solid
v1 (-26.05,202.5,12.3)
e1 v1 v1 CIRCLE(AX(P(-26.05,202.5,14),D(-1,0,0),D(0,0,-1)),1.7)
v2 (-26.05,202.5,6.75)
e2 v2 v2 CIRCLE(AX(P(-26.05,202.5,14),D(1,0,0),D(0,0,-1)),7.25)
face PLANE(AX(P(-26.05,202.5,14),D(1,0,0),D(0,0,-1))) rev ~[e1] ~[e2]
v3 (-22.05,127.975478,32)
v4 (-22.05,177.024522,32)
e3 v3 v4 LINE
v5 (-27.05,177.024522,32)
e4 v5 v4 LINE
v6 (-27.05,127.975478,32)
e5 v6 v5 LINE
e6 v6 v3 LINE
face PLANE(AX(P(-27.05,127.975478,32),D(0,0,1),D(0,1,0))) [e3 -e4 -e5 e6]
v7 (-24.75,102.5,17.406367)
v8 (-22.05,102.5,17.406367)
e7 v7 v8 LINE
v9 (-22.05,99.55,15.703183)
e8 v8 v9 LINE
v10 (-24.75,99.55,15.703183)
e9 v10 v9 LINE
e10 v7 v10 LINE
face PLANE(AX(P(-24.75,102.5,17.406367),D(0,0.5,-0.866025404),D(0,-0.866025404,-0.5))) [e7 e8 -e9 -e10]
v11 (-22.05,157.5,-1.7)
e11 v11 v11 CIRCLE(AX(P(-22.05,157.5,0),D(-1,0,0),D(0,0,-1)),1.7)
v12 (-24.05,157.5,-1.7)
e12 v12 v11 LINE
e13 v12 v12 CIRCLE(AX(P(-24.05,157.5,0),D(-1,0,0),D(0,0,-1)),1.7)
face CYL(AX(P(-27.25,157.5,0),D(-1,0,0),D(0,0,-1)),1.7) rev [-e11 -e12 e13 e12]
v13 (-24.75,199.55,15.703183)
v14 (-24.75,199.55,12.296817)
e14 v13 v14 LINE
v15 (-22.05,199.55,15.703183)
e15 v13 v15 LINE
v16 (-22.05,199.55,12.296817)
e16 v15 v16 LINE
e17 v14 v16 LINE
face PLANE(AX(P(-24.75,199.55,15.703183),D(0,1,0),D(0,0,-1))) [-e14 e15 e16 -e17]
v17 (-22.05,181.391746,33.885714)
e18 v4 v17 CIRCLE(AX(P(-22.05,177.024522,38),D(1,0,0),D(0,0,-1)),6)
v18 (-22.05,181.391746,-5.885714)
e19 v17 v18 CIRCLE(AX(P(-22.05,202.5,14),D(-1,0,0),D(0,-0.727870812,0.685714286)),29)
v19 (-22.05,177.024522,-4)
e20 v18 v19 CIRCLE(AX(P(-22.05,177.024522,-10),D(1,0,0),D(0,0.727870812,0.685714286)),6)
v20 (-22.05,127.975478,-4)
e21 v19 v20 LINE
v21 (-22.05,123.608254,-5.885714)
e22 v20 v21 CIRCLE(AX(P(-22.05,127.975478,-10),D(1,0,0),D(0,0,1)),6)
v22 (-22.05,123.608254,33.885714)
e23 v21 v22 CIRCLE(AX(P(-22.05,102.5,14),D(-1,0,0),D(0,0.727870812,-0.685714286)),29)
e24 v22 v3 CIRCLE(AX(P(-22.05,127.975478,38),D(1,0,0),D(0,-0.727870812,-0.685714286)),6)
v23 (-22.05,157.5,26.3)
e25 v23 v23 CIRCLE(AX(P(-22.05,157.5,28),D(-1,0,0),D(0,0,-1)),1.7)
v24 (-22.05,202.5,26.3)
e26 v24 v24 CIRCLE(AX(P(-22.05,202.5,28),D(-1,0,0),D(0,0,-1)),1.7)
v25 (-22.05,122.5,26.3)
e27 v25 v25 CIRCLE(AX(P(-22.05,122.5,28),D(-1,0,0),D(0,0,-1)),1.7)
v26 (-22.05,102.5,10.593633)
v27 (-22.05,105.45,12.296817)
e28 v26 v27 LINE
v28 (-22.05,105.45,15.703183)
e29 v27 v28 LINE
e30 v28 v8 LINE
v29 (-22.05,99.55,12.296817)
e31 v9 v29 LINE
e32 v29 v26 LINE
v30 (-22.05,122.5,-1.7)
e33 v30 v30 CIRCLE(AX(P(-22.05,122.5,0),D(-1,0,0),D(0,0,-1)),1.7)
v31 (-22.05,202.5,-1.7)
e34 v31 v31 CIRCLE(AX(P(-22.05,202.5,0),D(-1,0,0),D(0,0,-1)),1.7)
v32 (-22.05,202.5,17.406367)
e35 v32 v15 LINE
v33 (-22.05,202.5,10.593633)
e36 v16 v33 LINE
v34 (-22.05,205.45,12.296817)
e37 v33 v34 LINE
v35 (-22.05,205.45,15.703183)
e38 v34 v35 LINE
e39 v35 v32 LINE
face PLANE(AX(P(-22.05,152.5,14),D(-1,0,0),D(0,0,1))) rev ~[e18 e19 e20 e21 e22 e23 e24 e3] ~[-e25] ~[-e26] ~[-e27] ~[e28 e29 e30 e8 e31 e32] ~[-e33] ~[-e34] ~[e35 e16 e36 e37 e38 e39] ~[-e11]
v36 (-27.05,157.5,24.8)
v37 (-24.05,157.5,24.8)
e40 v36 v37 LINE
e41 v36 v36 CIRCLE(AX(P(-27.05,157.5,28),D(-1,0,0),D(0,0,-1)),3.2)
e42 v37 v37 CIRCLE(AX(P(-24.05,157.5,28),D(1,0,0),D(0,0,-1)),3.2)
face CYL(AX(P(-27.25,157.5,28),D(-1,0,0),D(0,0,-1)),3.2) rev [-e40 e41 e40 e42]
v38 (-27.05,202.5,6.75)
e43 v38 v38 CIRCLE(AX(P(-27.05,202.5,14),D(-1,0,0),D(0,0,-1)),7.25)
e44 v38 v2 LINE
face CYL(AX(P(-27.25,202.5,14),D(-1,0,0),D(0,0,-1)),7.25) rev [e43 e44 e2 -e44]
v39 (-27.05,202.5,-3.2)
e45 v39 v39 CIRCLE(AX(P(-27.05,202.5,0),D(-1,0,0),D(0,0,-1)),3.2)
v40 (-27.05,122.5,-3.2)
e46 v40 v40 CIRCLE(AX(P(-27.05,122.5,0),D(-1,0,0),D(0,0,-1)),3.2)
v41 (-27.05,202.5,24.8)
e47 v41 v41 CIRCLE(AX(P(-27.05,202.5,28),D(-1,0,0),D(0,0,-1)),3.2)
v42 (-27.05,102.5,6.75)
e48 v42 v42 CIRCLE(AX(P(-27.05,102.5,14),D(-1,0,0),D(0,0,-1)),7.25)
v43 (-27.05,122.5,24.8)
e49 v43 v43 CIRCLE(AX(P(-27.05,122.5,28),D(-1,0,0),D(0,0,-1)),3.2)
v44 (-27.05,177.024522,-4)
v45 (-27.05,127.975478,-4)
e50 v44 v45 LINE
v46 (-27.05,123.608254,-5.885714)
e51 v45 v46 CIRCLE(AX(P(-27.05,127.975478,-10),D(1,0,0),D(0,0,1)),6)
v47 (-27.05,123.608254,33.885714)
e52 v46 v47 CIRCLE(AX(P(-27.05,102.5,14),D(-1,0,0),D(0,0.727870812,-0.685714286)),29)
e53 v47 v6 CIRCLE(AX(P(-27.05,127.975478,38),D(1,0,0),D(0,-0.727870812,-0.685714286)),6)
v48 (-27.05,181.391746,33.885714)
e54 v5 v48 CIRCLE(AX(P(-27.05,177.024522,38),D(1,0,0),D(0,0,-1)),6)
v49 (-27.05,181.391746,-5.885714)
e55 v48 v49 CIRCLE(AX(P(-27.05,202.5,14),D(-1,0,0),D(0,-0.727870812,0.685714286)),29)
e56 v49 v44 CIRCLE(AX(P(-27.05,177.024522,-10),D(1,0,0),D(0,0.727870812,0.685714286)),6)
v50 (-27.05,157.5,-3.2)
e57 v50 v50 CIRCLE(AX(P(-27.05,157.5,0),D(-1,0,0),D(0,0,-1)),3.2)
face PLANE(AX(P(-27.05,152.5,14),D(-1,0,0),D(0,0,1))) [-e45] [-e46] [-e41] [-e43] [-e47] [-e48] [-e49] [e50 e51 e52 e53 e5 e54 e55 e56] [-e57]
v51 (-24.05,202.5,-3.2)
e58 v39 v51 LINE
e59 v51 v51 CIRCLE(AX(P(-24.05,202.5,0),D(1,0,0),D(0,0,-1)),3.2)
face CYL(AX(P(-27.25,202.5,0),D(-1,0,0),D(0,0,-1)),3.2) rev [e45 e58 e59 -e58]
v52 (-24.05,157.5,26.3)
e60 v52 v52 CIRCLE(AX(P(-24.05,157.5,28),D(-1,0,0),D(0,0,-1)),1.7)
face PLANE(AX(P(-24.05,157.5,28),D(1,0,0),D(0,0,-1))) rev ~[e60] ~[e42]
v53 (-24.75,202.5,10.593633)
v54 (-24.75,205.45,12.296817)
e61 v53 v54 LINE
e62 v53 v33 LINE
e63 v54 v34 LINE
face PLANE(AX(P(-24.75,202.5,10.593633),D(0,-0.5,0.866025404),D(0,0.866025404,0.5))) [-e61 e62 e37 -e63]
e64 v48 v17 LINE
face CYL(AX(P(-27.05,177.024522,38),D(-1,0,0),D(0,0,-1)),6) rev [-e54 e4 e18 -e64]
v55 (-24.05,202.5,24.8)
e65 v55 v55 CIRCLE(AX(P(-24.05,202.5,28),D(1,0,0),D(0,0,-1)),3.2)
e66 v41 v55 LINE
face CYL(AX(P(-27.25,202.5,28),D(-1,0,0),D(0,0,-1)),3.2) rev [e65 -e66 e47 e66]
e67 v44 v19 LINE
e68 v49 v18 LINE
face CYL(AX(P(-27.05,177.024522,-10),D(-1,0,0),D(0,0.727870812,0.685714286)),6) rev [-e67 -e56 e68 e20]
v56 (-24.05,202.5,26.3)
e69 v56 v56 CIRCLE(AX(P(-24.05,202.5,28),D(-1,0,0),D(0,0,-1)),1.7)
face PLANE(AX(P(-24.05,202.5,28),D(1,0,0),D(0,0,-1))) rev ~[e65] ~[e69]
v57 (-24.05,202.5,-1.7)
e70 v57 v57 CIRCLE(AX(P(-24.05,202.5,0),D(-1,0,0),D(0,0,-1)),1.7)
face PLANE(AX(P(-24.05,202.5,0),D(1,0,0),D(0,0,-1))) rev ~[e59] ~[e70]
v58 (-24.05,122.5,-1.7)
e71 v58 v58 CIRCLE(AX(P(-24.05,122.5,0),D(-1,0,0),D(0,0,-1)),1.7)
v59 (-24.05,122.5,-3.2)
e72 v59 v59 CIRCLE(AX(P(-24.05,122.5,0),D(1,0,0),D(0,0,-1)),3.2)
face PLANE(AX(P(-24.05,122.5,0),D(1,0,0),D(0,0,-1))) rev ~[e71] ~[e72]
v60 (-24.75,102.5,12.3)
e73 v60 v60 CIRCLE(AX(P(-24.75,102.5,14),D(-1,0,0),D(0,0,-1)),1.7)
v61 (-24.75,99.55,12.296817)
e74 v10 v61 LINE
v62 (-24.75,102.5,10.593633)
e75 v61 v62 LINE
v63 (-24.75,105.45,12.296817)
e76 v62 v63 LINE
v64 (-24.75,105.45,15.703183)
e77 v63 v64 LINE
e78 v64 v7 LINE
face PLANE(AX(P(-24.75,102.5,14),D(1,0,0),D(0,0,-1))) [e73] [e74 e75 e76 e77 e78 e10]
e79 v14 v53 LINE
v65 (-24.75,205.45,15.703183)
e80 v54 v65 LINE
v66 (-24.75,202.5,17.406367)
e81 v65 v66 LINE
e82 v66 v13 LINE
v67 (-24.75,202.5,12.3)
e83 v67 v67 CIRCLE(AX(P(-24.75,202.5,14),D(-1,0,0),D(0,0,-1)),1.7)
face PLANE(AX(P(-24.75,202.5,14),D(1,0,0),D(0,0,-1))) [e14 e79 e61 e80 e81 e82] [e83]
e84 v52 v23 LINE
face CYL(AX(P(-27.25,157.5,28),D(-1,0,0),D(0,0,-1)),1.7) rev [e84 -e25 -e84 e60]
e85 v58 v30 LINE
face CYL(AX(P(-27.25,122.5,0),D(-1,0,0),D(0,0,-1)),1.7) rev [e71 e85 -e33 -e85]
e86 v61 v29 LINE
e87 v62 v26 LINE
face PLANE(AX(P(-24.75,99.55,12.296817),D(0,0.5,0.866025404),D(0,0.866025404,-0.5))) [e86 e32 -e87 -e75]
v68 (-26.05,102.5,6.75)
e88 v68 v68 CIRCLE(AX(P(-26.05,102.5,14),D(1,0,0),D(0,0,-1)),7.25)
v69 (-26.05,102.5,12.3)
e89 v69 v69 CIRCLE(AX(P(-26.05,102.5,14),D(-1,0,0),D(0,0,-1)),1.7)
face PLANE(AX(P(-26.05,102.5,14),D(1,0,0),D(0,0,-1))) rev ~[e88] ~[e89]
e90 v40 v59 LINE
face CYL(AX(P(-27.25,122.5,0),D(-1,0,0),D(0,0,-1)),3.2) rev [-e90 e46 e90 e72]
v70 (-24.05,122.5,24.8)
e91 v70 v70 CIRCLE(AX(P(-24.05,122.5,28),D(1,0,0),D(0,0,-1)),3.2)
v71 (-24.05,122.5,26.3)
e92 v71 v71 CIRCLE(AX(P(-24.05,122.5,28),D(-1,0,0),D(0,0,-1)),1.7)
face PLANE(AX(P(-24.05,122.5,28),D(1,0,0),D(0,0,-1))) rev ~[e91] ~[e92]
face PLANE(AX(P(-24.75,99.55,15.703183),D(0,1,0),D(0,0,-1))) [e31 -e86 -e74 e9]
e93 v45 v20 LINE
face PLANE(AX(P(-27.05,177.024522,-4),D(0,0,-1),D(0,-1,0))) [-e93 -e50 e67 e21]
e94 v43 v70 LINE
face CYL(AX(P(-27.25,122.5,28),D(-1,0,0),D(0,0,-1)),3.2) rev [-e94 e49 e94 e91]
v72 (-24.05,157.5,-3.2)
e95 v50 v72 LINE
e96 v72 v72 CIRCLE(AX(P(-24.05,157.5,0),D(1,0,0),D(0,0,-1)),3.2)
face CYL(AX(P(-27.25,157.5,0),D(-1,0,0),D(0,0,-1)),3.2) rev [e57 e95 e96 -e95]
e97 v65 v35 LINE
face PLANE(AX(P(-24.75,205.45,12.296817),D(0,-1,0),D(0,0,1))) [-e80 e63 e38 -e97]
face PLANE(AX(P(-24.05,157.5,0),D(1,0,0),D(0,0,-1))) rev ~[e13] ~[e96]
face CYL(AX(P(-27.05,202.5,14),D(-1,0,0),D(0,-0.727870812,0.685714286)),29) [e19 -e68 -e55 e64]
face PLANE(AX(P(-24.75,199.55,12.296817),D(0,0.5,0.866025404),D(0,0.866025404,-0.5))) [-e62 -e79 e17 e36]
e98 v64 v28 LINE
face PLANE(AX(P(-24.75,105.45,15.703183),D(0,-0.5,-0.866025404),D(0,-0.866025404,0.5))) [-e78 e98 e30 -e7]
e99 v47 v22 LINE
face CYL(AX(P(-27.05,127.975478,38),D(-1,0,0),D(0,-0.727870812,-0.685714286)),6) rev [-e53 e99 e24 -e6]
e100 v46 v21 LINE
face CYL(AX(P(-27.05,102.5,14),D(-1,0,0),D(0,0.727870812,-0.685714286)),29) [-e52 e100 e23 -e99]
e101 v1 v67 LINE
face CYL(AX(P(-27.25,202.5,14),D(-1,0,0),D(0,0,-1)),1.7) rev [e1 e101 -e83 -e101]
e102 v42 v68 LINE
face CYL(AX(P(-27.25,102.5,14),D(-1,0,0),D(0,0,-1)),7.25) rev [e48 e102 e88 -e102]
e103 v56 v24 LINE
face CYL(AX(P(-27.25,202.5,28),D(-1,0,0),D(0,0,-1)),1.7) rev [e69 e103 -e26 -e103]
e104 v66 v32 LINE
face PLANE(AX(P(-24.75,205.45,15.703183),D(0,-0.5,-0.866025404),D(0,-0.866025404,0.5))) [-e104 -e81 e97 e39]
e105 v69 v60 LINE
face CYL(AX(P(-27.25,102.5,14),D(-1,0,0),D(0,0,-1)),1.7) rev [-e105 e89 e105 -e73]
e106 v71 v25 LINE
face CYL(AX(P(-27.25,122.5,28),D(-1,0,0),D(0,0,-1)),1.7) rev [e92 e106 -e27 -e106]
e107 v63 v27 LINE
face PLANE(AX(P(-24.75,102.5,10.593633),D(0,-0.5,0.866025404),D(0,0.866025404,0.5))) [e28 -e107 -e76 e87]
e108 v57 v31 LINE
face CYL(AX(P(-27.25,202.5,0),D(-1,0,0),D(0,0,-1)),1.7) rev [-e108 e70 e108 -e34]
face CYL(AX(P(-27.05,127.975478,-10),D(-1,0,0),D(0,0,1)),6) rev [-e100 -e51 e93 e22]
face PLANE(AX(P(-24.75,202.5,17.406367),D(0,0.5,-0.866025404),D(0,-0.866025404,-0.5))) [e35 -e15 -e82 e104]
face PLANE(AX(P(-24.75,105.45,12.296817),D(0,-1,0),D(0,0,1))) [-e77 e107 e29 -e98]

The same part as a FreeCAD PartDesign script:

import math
import FreeCAD as App
import Part
import Sketcher

V = App.Vector
Q = App.Units.Quantity

doc = App.newDocument("Part")
body = doc.addObject("PartDesign::Body", "Body")

# Sketch on YZ plane
sketch1 = body.newObject("Sketcher::SketchObject", "Sketch")
sketch1.AttachmentSupport = (doc.getObject("YZ_Plane"), [""])
sketch1.MapMode = "FlatFace"
sketch1.AttachmentOffset = App.Placement(V(0, 0, -27.05), App.Rotation())
sketch1.addGeometry(Part.LineSegment(V(177, 32, 0), V(128, 32, 0)), False)
sketch1.addGeometry(Part.ArcOfCircle(Part.Circle(V(128, 38, 0), V(0, 0, 1), 6), math.radians(-137), math.radians(-90)), False)
sketch1.addGeometry(Part.ArcOfCircle(Part.Circle(V(102.5, 14, 0), V(0, 0, 1), 29), math.radians(43), math.radians(317)), False)
sketch1.addGeometry(Part.ArcOfCircle(Part.Circle(V(128, -10, 0), V(0, 0, 1), 6), math.radians(90), math.radians(137)), False)
sketch1.addGeometry(Part.LineSegment(V(128, -4, 0), V(177, -4, 0)), False)
sketch1.addGeometry(Part.ArcOfCircle(Part.Circle(V(177, -10, 0), V(0, 0, 1), 6), math.radians(43), math.radians(90)), False)
sketch1.addGeometry(Part.ArcOfCircle(Part.Circle(V(202.5, 14, 0), V(0, 0, 1), 29), math.radians(-137), math.radians(137)), False)
sketch1.addGeometry(Part.ArcOfCircle(Part.Circle(V(177, 38, 0), V(0, 0, 1), 6), math.radians(-90), math.radians(-43)), False)
sketch1.addConstraint(Sketcher.Constraint("Tangent", 0, 2, 1, 2))
sketch1.addConstraint(Sketcher.Constraint("Tangent", 1, 1, 2, 1))
sketch1.addConstraint(Sketcher.Constraint("Tangent", 2, 2, 3, 2))
sketch1.addConstraint(Sketcher.Constraint("Tangent", 3, 1, 4, 1))
sketch1.addConstraint(Sketcher.Constraint("Tangent", 4, 2, 5, 2))
sketch1.addConstraint(Sketcher.Constraint("Tangent", 5, 1, 6, 1))
sketch1.addConstraint(Sketcher.Constraint("Tangent", 6, 2, 7, 2))
sketch1.addConstraint(Sketcher.Constraint("Tangent", 7, 1, 0, 1))
sketch1.addConstraint(Sketcher.Constraint("Horizontal", 0))
sketch1.addConstraint(Sketcher.Constraint("Horizontal", 4))
sketch1.addConstraint(Sketcher.Constraint("Equal", 1, 3))
sketch1.addConstraint(Sketcher.Constraint("Equal", 3, 5))
sketch1.addConstraint(Sketcher.Constraint("Equal", 2, 6))
sketch1.addConstraint(Sketcher.Constraint("Equal", 5, 7))
sketch1.addConstraint(Sketcher.Constraint("Horizontal", 2, 3, 6, 3))
sketch1.addConstraint(Sketcher.Constraint("Vertical", 1, 3, 3, 3))
sketch1.addConstraint(Sketcher.Constraint("Radius", 1, Q("6 mm")))
sketch1.addConstraint(Sketcher.Constraint("Radius", 2, Q("29 mm")))
sketch1.addConstraint(Sketcher.Constraint("DistanceY", -1, 1, 1, 3, Q("38 mm")))
sketch1.addConstraint(Sketcher.Constraint("DistanceY", -1, 1, 2, 3, Q("14 mm")))
sketch1.addConstraint(Sketcher.Constraint("DistanceX", 2, 3, 6, 3, Q("100 mm")))
sketch1.addConstraint(Sketcher.Constraint("DistanceX", -1, 1, 2, 3, Q("102.5 mm")))
pad1 = body.newObject("PartDesign::Pad", "Pad")
pad1.Profile = sketch1
pad1.Length = 5

# Sketch on YZ plane
sketch2 = body.newObject("Sketcher::SketchObject", "Sketch001")
sketch2.AttachmentSupport = (doc.getObject("YZ_Plane"), [""])
sketch2.MapMode = "FlatFace"
sketch2.AttachmentOffset = App.Placement(V(0, 0, -27.25), App.Rotation())
sketch2.addGeometry(Part.Circle(V(102, 14, 0), V(0, 0, 1), 7), False)
sketch2.addGeometry(Part.Circle(V(202, 14, 0), V(0, 0, 1), 7), False)
sketch2.addConstraint(Sketcher.Constraint("Equal", 0, 1))
sketch2.addConstraint(Sketcher.Constraint("Horizontal", 0, 3, 1, 3))
sketch2.addConstraint(Sketcher.Constraint("Diameter", 0, Q("14.5 mm")))
sketch2.addConstraint(Sketcher.Constraint("DistanceY", -1, 1, 0, 3, Q("14 mm")))
sketch2.addConstraint(Sketcher.Constraint("DistanceX", 0, 3, 1, 3, Q("100 mm")))
sketch2.addConstraint(Sketcher.Constraint("DistanceX", -1, 1, 0, 3, Q("102.5 mm")))
pocket1 = body.newObject("PartDesign::Pocket", "Pocket")
pocket1.Profile = sketch2
pocket1.Length = 1.2
pocket1.Reversed = True

# Sketch on YZ plane
sketch3 = body.newObject("Sketcher::SketchObject", "Sketch002")
sketch3.AttachmentSupport = (doc.getObject("YZ_Plane"), [""])
sketch3.MapMode = "FlatFace"
sketch3.AttachmentOffset = App.Placement(V(0, 0, -27.25), App.Rotation())
sketch3.addGeometry(Part.Circle(V(102.5, 14, 0), V(0, 0, 1), 1.7), False)
sketch3.addGeometry(Part.Circle(V(202.5, 14, 0), V(0, 0, 1), 1.7), False)
sketch3.addGeometry(Part.Circle(V(122.5, 0, 0), V(0, 0, 1), 1.7), False)
sketch3.addGeometry(Part.Circle(V(122.5, 28, 0), V(0, 0, 1), 1.7), False)
sketch3.addGeometry(Part.Circle(V(157.5, 0, 0), V(0, 0, 1), 1.7), False)
sketch3.addGeometry(Part.Circle(V(157.5, 28, 0), V(0, 0, 1), 1.7), False)
sketch3.addGeometry(Part.Circle(V(202.5, 0, 0), V(0, 0, 1), 1.7), False)
sketch3.addGeometry(Part.Circle(V(202.5, 28, 0), V(0, 0, 1), 1.7), False)
sketch3.addConstraint(Sketcher.Constraint("Equal", 0, 1))
sketch3.addConstraint(Sketcher.Constraint("Equal", 1, 2))
sketch3.addConstraint(Sketcher.Constraint("Equal", 2, 3))
sketch3.addConstraint(Sketcher.Constraint("Equal", 3, 4))
sketch3.addConstraint(Sketcher.Constraint("Equal", 4, 5))
sketch3.addConstraint(Sketcher.Constraint("Equal", 5, 6))
sketch3.addConstraint(Sketcher.Constraint("Equal", 6, 7))
sketch3.addConstraint(Sketcher.Constraint("PointOnObject", 2, 3, -1))
sketch3.addConstraint(Sketcher.Constraint("PointOnObject", 4, 3, -1))
sketch3.addConstraint(Sketcher.Constraint("PointOnObject", 6, 3, -1))
sketch3.addConstraint(Sketcher.Constraint("Horizontal", 0, 3, 1, 3))
sketch3.addConstraint(Sketcher.Constraint("Horizontal", 3, 3, 5, 3))
sketch3.addConstraint(Sketcher.Constraint("Horizontal", 5, 3, 7, 3))
sketch3.addConstraint(Sketcher.Constraint("Vertical", 2, 3, 3, 3))
sketch3.addConstraint(Sketcher.Constraint("Vertical", 4, 3, 5, 3))
sketch3.addConstraint(Sketcher.Constraint("Vertical", 1, 3, 6, 3))
sketch3.addConstraint(Sketcher.Constraint("Vertical", 6, 3, 7, 3))
sketch3.addConstraint(Sketcher.Constraint("Diameter", 0, Q("3.4 mm")))
sketch3.addConstraint(Sketcher.Constraint("DistanceY", -1, 1, 0, 3, Q("14 mm")))
sketch3.addConstraint(Sketcher.Constraint("DistanceY", -1, 1, 3, 3, Q("28 mm")))
sketch3.addConstraint(Sketcher.Constraint("DistanceX", 0, 3, 1, 3, Q("100 mm")))
sketch3.addConstraint(Sketcher.Constraint("DistanceX", 0, 3, 2, 3, Q("20 mm")))
sketch3.addConstraint(Sketcher.Constraint("DistanceX", 2, 3, 4, 3, Q("35 mm")))
sketch3.addConstraint(Sketcher.Constraint("DistanceX", -1, 1, 0, 3, Q("102.5 mm")))
pocket2 = body.newObject("PartDesign::Pocket", "Pocket001")
pocket2.Profile = sketch3
pocket2.Length = 5.4
pocket2.Reversed = True

# Sketch on YZ plane
sketch4 = body.newObject("Sketcher::SketchObject", "Sketch003")
sketch4.AttachmentSupport = (doc.getObject("YZ_Plane"), [""])
sketch4.MapMode = "FlatFace"
sketch4.AttachmentOffset = App.Placement(V(0, 0, -24.75), App.Rotation())
sketch4.addGeometry(Part.LineSegment(V(105.5, 15.7, 0), V(102.5, 17.4, 0)), False)
sketch4.addGeometry(Part.LineSegment(V(102.5, 17.4, 0), V(99.5, 15.7, 0)), False)
sketch4.addGeometry(Part.LineSegment(V(99.5, 15.7, 0), V(99.5, 12.3, 0)), False)
sketch4.addGeometry(Part.LineSegment(V(99.5, 12.3, 0), V(102.5, 10.6, 0)), False)
sketch4.addGeometry(Part.LineSegment(V(102.5, 10.6, 0), V(105.5, 12.3, 0)), False)
sketch4.addGeometry(Part.LineSegment(V(105.5, 12.3, 0), V(105.5, 15.7, 0)), False)
sketch4.addGeometry(Part.LineSegment(V(205.4, 15.7, 0), V(202.5, 17.4, 0)), False)
sketch4.addGeometry(Part.LineSegment(V(202.5, 17.4, 0), V(199.6, 15.7, 0)), False)
sketch4.addGeometry(Part.LineSegment(V(199.6, 15.7, 0), V(199.6, 12.3, 0)), False)
sketch4.addGeometry(Part.LineSegment(V(199.6, 12.3, 0), V(202.5, 10.6, 0)), False)
sketch4.addGeometry(Part.LineSegment(V(202.5, 10.6, 0), V(205.4, 12.3, 0)), False)
sketch4.addGeometry(Part.LineSegment(V(205.4, 12.3, 0), V(205.4, 15.7, 0)), False)
sketch4.addConstraint(Sketcher.Constraint("Coincident", 0, 2, 1, 1))
sketch4.addConstraint(Sketcher.Constraint("Coincident", 1, 2, 2, 1))
sketch4.addConstraint(Sketcher.Constraint("Coincident", 2, 2, 3, 1))
sketch4.addConstraint(Sketcher.Constraint("Coincident", 3, 2, 4, 1))
sketch4.addConstraint(Sketcher.Constraint("Coincident", 4, 2, 5, 1))
sketch4.addConstraint(Sketcher.Constraint("Coincident", 5, 2, 0, 1))
sketch4.addConstraint(Sketcher.Constraint("Coincident", 6, 2, 7, 1))
sketch4.addConstraint(Sketcher.Constraint("Coincident", 7, 2, 8, 1))
sketch4.addConstraint(Sketcher.Constraint("Coincident", 8, 2, 9, 1))
sketch4.addConstraint(Sketcher.Constraint("Coincident", 9, 2, 10, 1))
sketch4.addConstraint(Sketcher.Constraint("Coincident", 10, 2, 11, 1))
sketch4.addConstraint(Sketcher.Constraint("Coincident", 11, 2, 6, 1))
sketch4.addConstraint(Sketcher.Constraint("Vertical", 2))
sketch4.addConstraint(Sketcher.Constraint("Vertical", 5))
sketch4.addConstraint(Sketcher.Constraint("Vertical", 8))
sketch4.addConstraint(Sketcher.Constraint("Vertical", 11))
sketch4.addConstraint(Sketcher.Constraint("Parallel", 0, 3))
sketch4.addConstraint(Sketcher.Constraint("Parallel", 1, 4))
sketch4.addConstraint(Sketcher.Constraint("Parallel", 3, 6))
sketch4.addConstraint(Sketcher.Constraint("Parallel", 4, 7))
sketch4.addConstraint(Sketcher.Constraint("Parallel", 6, 9))
sketch4.addConstraint(Sketcher.Constraint("Parallel", 7, 10))
sketch4.addConstraint(Sketcher.Constraint("Horizontal", 2, 2, 4, 2))
sketch4.addConstraint(Sketcher.Constraint("Horizontal", 1, 2, 5, 2))
sketch4.addConstraint(Sketcher.Constraint("Horizontal", 0, 2, 6, 2))
sketch4.addConstraint(Sketcher.Constraint("Horizontal", 5, 2, 7, 2))
sketch4.addConstraint(Sketcher.Constraint("Horizontal", 4, 2, 8, 2))
sketch4.addConstraint(Sketcher.Constraint("Horizontal", 3, 2, 9, 2))
sketch4.addConstraint(Sketcher.Constraint("Horizontal", 8, 2, 10, 2))
sketch4.addConstraint(Sketcher.Constraint("Vertical", 0, 2, 3, 2))
sketch4.addConstraint(Sketcher.Constraint("Angle", 0, Q("150 deg")))
sketch4.addConstraint(Sketcher.Constraint("DistanceX", 0, 2, 6, 2, Q("100 mm")))
sketch4.addConstraint(Sketcher.Constraint("DistanceX", -1, 1, 0, 2, Q("102.5 mm")))
sketch4.addConstraint(Sketcher.Constraint("DistanceX", 2, 2, 4, 2, Q("5.9 mm")))
sketch4.addConstraint(Sketcher.Constraint("DistanceY", 2, 2, 2, 1, Q("3.406367 mm")))
sketch4.addConstraint(Sketcher.Constraint("DistanceY", -1, 1, 0, 2, Q("17.406367 mm")))
pocket3 = body.newObject("PartDesign::Pocket", "Pocket002")
pocket3.Profile = sketch4
pocket3.Length = 2.9
pocket3.Reversed = True

# Sketch on YZ plane
sketch5 = body.newObject("Sketcher::SketchObject", "Sketch004")
sketch5.AttachmentSupport = (doc.getObject("YZ_Plane"), [""])
sketch5.MapMode = "FlatFace"
sketch5.AttachmentOffset = App.Placement(V(0, 0, -27.25), App.Rotation())
sketch5.addGeometry(Part.Circle(V(122.5, 0, 0), V(0, 0, 1), 3.2), False)
sketch5.addGeometry(Part.Circle(V(122.5, 28, 0), V(0, 0, 1), 3.2), False)
sketch5.addGeometry(Part.Circle(V(157.5, 0, 0), V(0, 0, 1), 3.2), False)
sketch5.addGeometry(Part.Circle(V(157.5, 28, 0), V(0, 0, 1), 3.2), False)
sketch5.addGeometry(Part.Circle(V(202.5, 0, 0), V(0, 0, 1), 3.2), False)
sketch5.addGeometry(Part.Circle(V(202.5, 28, 0), V(0, 0, 1), 3.2), False)
sketch5.addConstraint(Sketcher.Constraint("Equal", 0, 1))
sketch5.addConstraint(Sketcher.Constraint("Equal", 1, 2))
sketch5.addConstraint(Sketcher.Constraint("Equal", 2, 3))
sketch5.addConstraint(Sketcher.Constraint("Equal", 3, 4))
sketch5.addConstraint(Sketcher.Constraint("Equal", 4, 5))
sketch5.addConstraint(Sketcher.Constraint("PointOnObject", 0, 3, -1))
sketch5.addConstraint(Sketcher.Constraint("PointOnObject", 2, 3, -1))
sketch5.addConstraint(Sketcher.Constraint("PointOnObject", 4, 3, -1))
sketch5.addConstraint(Sketcher.Constraint("Horizontal", 1, 3, 3, 3))
sketch5.addConstraint(Sketcher.Constraint("Horizontal", 3, 3, 5, 3))
sketch5.addConstraint(Sketcher.Constraint("Vertical", 0, 3, 1, 3))
sketch5.addConstraint(Sketcher.Constraint("Vertical", 2, 3, 3, 3))
sketch5.addConstraint(Sketcher.Constraint("Vertical", 4, 3, 5, 3))
sketch5.addConstraint(Sketcher.Constraint("Diameter", 0, Q("6.4 mm")))
sketch5.addConstraint(Sketcher.Constraint("DistanceY", -1, 1, 1, 3, Q("28 mm")))
sketch5.addConstraint(Sketcher.Constraint("DistanceX", 0, 3, 2, 3, Q("35 mm")))
sketch5.addConstraint(Sketcher.Constraint("DistanceX", 2, 3, 4, 3, Q("45 mm")))
sketch5.addConstraint(Sketcher.Constraint("DistanceX", -1, 1, 0, 3, Q("122.5 mm")))
pocket4 = body.newObject("PartDesign::Pocket", "Pocket003")
pocket4.Profile = sketch5
pocket4.Length = 3.2
pocket4.Reversed = True

doc.recompute()
